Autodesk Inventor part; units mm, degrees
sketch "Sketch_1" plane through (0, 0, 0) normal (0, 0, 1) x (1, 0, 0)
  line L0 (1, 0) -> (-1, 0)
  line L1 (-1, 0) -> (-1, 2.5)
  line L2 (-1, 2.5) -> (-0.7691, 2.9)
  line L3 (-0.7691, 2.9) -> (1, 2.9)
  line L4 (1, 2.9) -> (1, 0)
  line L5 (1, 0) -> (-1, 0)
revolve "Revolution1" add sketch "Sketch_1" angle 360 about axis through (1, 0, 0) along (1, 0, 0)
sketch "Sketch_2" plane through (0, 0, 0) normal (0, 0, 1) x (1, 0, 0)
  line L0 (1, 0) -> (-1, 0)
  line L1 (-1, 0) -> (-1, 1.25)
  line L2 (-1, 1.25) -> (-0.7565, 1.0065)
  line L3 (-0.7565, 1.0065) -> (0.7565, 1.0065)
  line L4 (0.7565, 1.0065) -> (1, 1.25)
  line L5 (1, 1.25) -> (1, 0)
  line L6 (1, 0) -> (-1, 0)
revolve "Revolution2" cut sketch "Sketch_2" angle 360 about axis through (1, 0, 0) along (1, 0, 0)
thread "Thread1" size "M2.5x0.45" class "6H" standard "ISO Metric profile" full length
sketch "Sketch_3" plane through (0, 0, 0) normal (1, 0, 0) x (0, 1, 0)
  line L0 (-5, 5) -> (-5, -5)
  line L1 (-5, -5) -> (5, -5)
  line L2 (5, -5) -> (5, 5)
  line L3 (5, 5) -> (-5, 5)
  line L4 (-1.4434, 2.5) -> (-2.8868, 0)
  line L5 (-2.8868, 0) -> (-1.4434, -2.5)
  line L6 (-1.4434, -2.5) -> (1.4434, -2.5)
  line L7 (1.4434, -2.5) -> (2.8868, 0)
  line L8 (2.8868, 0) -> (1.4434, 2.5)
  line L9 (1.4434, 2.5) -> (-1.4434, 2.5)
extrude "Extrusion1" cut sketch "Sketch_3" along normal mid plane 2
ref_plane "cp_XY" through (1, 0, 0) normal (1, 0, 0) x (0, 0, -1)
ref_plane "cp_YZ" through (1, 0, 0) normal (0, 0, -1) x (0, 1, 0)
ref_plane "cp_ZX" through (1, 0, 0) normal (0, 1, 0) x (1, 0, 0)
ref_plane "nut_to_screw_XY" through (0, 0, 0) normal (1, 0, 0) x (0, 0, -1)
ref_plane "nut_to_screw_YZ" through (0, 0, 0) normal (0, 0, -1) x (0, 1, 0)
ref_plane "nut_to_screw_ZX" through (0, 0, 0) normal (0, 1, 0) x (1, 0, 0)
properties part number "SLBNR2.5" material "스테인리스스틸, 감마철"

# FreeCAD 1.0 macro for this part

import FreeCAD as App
import Part
import Sketcher
from FreeCAD import Vector
Q = App.Units.Quantity


def add_polygon(sketch, points):
    """Adds a closed chain of lines whose ends are joined by coincident constraints."""
    first, n = sketch.GeometryCount, len(points)
    for a, b in zip(points, points[1:] + points[:1]):
        sketch.addGeometry(Part.LineSegment(App.Vector(*a, 0), App.Vector(*b, 0)), False)
    for i in range(n):
        sketch.addConstraint(Sketcher.Constraint("Coincident", first + i, 2, first + (i + 1) % n, 1))

doc = App.newDocument("Part")
body = doc.addObject("PartDesign::Body", "Body")

# Sketch on XY plane
sketch1 = body.newObject("Sketcher::SketchObject", "Sketch")
sketch1.AttachmentSupport = (doc.getObject("XY_Plane"), [""])
sketch1.MapMode = "FlatFace"
add_polygon(sketch1, [(-1, 0), (1, 0), (1, 2.9), (-0.77, 2.9), (-1, 2.5)])  # lines 0-4
sketch1.addConstraint(Sketcher.Constraint("Horizontal", 0))
sketch1.addConstraint(Sketcher.Constraint("Vertical", 1))
sketch1.addConstraint(Sketcher.Constraint("Horizontal", 2))
sketch1.addConstraint(Sketcher.Constraint("Vertical", 4))
sketch1.addConstraint(Sketcher.Constraint("Symmetric", 0, 2, 4, 2, -1, 1))
sketch1.addConstraint(Sketcher.Constraint("DistanceX", 0, 1, 0, 2, Q("2 mm")))
sketch1.addConstraint(Sketcher.Constraint("DistanceY", 1, 1, 1, 2, Q("2.9 mm")))
sketch1.addConstraint(Sketcher.Constraint("DistanceY", 4, 2, 4, 1, Q("2.5 mm")))
sketch1.addConstraint(Sketcher.Constraint("DistanceX", 2, 2, 2, 1, Q("1.769 mm")))
revolution = body.newObject("PartDesign::Revolution", "Revolution")
revolution.Profile = sketch1
revolution.ReferenceAxis = (sketch1, ["H_Axis"])
revolution.Angle = 360

# Sketch on XY plane
sketch2 = body.newObject("Sketcher::SketchObject", "Sketch001")
sketch2.AttachmentSupport = (doc.getObject("XY_Plane"), [""])
sketch2.MapMode = "FlatFace"
add_polygon(sketch2, [(-1, 0), (1, 0), (1, 1.25), (0.76, 1.01), (-0.76, 1.01), (-1, 1.25)])  # lines 0-5
sketch2.addConstraint(Sketcher.Constraint("Horizontal", 0))
sketch2.addConstraint(Sketcher.Constraint("Vertical", 1))
sketch2.addConstraint(Sketcher.Constraint("Horizontal", 3))
sketch2.addConstraint(Sketcher.Constraint("Vertical", 5))
sketch2.addConstraint(Sketcher.Constraint("Symmetric", 0, 2, 5, 2, -1, 1))
sketch2.addConstraint(Sketcher.Constraint("Perpendicular", 2, 4))
sketch2.addConstraint(Sketcher.Constraint("Horizontal", 1, 2, 4, 2))
sketch2.addConstraint(Sketcher.Constraint("Equal", 2, 4))
sketch2.addConstraint(Sketcher.Constraint("DistanceX", 0, 1, 0, 2, Q("2 mm")))
sketch2.addConstraint(Sketcher.Constraint("DistanceY", 1, 1, 1, 2, Q("1.25 mm")))
sketch2.addConstraint(Sketcher.Constraint("DistanceX", 3, 2, 3, 1, Q("1.513 mm")))
groove = body.newObject("PartDesign::Groove", "Groove")
groove.Profile = sketch2
groove.ReferenceAxis = (sketch2, ["H_Axis"])
groove.Angle = 360

# Sketch on YZ plane
sketch3 = body.newObject("Sketcher::SketchObject", "Sketch002")
sketch3.AttachmentSupport = (doc.getObject("YZ_Plane"), [""])
sketch3.MapMode = "FlatFace"
add_polygon(sketch3, [(5, 5), (-5, 5), (-5, -5), (5, -5)])  # lines 0-3
add_polygon(sketch3, [(-2.9, 0), (-1.4, 2.5), (1.4, 2.5), (2.9, 0), (1.4, -2.5), (-1.4, -2.5)])  # lines 4-9
sketch3.addConstraint(Sketcher.Constraint("Horizontal", 0))
sketch3.addConstraint(Sketcher.Constraint("Vertical", 1))
sketch3.addConstraint(Sketcher.Constraint("Horizontal", 2))
sketch3.addConstraint(Sketcher.Constraint("Vertical", 3))
sketch3.addConstraint(Sketcher.Constraint("Horizontal", 5))
sketch3.addConstraint(Sketcher.Constraint("Horizontal", 8))
sketch3.addConstraint(Sketcher.Constraint("Symmetric", 0, 2, 2, 2, -1, 1))
sketch3.addConstraint(Sketcher.Constraint("Symmetric", 4, 2, 7, 2, -1, 1))
sketch3.addConstraint(Sketcher.Constraint("Symmetric", 6, 2, 9, 2, -1, 1))
sketch3.addConstraint(Sketcher.Constraint("PointOnObject", 6, 2, -1))
sketch3.addConstraint(Sketcher.Constraint("Parallel", 6, 9))
sketch3.addConstraint(Sketcher.Constraint("Vertical", 5, 2, 7, 2))
sketch3.addConstraint(Sketcher.Constraint("Equal", 2, 1))
sketch3.addConstraint(Sketcher.Constraint("DistanceX", 0, 2, 0, 1, Q("10 mm")))
sketch3.addConstraint(Sketcher.Constraint("Angle", 4, Q("59.9996 deg")))
sketch3.addConstraint(Sketcher.Constraint("DistanceY", 7, 2, 5, 2, Q("5 mm")))
sketch3.addConstraint(Sketcher.Constraint("DistanceX", 5, 1, 5, 2, Q("2.8868 mm")))
pocket1 = body.newObject("PartDesign::Pocket", "Pocket")
pocket1.Profile = sketch3
pocket1.Length = 2
pocket1.Midplane = True

doc.recompute()
